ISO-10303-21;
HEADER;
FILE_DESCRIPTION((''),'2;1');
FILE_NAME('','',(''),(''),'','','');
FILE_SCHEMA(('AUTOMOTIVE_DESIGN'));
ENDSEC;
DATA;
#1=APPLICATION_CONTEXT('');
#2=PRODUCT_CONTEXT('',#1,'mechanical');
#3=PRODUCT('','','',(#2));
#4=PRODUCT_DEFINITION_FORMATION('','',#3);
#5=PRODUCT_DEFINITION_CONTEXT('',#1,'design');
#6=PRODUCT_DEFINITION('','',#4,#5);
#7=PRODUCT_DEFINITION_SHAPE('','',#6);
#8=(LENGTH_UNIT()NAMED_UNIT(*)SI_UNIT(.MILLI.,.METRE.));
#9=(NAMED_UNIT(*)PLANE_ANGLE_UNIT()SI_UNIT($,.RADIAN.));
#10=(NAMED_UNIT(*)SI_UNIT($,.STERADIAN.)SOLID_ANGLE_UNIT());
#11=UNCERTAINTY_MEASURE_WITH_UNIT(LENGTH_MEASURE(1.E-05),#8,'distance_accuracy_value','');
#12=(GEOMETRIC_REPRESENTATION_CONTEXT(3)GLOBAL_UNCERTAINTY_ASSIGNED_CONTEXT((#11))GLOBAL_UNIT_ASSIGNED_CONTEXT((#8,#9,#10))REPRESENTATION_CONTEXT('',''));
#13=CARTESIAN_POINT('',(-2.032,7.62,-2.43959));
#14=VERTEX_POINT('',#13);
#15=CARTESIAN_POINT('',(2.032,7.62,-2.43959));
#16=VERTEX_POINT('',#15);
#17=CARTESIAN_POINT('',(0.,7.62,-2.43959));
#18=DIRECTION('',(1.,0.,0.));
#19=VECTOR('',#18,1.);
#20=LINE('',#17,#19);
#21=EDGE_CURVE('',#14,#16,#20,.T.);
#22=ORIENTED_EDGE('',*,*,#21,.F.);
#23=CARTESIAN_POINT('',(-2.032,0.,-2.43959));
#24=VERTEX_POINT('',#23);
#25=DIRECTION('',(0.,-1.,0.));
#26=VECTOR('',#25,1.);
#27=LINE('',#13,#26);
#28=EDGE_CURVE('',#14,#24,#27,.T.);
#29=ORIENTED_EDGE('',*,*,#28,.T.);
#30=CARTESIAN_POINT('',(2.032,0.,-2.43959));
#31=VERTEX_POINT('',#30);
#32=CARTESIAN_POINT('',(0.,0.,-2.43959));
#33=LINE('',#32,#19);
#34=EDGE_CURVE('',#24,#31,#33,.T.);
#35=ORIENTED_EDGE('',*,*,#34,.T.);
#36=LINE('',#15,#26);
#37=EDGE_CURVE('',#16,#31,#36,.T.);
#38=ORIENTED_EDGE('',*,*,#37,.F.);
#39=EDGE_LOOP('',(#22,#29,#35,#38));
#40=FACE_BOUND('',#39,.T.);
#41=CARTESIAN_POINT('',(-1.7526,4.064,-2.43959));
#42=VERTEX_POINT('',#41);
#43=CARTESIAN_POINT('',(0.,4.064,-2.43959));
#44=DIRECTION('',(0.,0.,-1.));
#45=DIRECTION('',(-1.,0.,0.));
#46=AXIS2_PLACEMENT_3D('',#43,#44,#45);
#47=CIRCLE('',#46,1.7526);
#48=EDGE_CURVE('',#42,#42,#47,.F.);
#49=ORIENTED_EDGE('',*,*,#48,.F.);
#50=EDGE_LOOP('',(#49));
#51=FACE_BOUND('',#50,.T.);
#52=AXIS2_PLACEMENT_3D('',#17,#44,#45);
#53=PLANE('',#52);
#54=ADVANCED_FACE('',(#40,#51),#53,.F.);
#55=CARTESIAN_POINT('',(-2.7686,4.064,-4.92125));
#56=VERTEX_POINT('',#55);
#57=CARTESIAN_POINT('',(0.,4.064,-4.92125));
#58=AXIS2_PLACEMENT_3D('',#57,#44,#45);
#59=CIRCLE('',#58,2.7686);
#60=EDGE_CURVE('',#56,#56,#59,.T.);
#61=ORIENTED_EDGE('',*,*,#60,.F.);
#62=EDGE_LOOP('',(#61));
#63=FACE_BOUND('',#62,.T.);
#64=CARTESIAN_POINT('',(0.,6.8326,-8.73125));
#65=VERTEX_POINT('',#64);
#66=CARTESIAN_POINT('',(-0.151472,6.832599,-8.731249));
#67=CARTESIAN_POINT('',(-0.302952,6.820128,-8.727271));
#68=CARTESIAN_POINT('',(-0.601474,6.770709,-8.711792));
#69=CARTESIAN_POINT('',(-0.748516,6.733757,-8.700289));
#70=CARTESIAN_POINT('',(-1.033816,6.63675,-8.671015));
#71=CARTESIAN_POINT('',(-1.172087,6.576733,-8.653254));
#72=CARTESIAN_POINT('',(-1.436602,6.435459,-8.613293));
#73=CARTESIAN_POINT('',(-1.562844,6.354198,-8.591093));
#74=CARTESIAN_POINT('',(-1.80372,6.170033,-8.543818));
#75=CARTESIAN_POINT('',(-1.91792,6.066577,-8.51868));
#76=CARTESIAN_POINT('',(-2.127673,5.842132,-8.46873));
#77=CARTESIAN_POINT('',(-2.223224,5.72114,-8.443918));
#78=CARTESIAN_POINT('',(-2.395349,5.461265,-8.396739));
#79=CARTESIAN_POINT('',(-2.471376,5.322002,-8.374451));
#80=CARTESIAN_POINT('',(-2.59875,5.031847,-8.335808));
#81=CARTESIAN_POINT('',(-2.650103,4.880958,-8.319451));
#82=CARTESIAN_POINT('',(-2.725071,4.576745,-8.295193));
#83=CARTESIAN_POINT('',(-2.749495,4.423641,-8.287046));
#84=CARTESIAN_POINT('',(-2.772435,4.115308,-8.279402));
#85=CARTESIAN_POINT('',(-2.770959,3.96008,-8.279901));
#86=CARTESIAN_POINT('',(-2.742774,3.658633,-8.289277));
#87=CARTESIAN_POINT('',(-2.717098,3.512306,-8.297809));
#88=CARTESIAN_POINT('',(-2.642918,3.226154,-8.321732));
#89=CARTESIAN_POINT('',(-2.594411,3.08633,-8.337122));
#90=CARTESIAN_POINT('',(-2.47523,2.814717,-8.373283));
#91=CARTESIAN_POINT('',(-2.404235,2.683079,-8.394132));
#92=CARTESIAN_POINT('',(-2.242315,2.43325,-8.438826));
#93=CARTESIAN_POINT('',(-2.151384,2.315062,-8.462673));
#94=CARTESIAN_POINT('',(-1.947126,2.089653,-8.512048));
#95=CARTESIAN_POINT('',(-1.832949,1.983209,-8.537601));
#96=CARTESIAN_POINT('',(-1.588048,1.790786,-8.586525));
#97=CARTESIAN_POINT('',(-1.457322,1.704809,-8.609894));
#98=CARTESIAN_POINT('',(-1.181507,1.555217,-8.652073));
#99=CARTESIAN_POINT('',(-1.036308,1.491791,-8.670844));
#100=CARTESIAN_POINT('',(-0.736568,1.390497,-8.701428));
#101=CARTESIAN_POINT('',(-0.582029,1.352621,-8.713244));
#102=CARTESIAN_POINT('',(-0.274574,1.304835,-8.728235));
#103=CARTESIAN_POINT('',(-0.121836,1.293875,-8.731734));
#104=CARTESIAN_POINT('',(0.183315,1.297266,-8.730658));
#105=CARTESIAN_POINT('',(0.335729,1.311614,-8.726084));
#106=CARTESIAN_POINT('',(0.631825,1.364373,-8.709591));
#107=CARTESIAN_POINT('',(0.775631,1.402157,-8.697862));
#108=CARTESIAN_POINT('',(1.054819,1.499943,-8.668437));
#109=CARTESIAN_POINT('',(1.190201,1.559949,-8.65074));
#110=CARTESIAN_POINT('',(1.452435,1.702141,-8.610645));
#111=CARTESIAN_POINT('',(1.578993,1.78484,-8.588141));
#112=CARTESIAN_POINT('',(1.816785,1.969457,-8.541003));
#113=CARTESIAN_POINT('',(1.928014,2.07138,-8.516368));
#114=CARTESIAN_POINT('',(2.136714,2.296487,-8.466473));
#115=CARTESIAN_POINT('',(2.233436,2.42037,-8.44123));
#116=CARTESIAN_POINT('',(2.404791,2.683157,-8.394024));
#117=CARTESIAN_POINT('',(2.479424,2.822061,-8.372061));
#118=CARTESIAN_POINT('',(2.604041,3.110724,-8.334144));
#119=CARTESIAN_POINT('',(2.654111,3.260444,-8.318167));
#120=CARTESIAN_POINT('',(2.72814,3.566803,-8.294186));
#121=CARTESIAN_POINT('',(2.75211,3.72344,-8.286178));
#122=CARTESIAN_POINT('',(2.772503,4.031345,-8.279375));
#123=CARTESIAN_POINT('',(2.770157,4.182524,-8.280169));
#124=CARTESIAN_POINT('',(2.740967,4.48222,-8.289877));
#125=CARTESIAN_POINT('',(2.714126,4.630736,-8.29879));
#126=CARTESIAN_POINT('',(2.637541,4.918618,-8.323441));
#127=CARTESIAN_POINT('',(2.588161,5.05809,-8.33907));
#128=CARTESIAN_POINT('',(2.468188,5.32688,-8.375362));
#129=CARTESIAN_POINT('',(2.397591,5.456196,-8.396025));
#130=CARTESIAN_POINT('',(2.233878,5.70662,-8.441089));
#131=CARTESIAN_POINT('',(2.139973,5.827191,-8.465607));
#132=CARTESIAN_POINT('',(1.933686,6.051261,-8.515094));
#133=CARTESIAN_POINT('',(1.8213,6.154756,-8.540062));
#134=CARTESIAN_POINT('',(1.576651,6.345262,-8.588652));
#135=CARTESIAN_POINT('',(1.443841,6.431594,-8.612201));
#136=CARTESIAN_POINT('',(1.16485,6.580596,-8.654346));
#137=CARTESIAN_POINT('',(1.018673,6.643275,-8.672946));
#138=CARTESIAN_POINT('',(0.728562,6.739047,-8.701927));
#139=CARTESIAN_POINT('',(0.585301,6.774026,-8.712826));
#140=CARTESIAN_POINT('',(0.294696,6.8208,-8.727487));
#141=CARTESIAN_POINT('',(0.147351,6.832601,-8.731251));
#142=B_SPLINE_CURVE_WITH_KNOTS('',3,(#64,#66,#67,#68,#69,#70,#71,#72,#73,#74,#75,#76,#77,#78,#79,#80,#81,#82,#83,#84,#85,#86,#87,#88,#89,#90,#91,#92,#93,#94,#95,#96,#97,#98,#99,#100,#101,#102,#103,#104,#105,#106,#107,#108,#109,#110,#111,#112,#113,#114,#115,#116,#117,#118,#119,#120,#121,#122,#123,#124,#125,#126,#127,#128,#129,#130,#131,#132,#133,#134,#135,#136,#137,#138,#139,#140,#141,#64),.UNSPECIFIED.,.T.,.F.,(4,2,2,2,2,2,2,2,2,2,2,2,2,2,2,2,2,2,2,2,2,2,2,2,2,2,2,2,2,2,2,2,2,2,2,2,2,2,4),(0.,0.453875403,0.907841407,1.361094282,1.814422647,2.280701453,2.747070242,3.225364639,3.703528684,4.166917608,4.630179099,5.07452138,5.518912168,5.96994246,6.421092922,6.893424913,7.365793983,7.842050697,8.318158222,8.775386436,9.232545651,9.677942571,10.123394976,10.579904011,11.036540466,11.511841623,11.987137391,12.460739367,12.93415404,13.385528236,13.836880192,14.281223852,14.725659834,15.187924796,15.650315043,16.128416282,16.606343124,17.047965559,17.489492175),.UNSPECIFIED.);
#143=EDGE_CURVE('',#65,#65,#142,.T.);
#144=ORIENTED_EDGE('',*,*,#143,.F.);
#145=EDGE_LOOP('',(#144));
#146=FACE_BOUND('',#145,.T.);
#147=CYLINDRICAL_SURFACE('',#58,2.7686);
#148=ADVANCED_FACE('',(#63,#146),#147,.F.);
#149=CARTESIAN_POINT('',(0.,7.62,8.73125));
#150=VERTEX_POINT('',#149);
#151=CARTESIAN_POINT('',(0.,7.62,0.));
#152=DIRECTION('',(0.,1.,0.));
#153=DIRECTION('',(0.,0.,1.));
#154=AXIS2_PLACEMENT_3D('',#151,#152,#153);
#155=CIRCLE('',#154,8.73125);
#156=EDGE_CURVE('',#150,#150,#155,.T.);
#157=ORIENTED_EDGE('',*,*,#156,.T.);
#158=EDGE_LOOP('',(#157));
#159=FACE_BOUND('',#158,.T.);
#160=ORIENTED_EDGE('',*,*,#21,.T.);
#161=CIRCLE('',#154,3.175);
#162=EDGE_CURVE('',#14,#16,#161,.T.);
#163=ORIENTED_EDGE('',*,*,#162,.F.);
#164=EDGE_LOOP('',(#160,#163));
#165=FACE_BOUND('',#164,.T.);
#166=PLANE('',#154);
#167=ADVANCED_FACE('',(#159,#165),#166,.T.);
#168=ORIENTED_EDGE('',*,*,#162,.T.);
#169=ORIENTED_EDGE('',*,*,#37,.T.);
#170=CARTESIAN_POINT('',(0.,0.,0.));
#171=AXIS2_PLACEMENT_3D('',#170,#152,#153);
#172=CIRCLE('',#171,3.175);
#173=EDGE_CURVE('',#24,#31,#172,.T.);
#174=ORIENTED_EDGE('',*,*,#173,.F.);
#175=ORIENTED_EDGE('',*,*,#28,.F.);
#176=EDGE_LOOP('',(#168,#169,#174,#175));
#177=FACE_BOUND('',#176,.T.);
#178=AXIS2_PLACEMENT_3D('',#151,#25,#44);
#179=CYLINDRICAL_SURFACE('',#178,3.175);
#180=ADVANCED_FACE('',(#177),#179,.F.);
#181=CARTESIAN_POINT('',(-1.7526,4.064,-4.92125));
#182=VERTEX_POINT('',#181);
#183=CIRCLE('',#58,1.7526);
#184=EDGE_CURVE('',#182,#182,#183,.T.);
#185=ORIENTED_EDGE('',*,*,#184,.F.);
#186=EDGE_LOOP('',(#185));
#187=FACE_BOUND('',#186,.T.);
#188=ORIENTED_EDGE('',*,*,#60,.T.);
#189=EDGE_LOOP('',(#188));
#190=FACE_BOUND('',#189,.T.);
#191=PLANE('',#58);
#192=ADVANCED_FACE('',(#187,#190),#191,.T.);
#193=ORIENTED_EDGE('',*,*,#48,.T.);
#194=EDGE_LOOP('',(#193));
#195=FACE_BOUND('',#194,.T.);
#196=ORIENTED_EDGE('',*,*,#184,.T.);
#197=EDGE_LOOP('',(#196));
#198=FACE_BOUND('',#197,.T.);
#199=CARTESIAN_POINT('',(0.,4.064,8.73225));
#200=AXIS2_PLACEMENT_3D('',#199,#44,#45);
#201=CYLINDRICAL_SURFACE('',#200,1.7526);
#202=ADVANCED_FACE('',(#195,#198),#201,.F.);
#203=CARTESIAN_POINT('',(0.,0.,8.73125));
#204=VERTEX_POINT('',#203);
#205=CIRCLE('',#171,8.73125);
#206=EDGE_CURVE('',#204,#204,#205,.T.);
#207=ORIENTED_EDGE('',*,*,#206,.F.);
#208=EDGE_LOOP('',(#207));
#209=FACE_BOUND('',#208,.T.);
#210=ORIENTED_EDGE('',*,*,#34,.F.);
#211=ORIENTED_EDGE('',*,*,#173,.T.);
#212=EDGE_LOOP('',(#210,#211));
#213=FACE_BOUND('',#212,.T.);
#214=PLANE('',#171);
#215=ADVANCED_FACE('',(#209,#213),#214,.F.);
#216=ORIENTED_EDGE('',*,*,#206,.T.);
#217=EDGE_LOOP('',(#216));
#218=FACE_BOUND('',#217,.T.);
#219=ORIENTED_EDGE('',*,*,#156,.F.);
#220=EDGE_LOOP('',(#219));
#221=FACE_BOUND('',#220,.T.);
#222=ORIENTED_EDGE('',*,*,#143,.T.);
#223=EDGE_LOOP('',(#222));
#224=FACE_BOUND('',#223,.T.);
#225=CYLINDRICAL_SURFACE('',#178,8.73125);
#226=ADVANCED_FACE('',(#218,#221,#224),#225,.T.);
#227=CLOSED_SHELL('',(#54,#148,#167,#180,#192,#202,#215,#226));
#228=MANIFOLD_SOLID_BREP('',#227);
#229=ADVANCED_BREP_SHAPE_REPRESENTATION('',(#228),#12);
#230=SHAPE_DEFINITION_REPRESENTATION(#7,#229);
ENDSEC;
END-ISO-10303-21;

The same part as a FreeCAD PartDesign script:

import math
import FreeCAD as App
import Part
import Sketcher
from FreeCAD import Vector
Q = App.Units.Quantity

doc = App.newDocument("Part")
body = doc.addObject("PartDesign::Body", "Body")

sketch1 = doc.addObject("Sketcher::SketchObject", "Sketch")
body.addObject(sketch1)
sketch1.AttachmentSupport = (doc.XZ_Plane, [""])
sketch1.MapMode = "FlatFace"
sketch1.addGeometry(Part.Circle(Vector(0, 0, 0), Vector(0, 0, 1), 8.7), False)
sketch1.addGeometry(Part.ArcOfCircle(Part.Circle(Vector(0, 0, 0), Vector(0, 0, 1), 3.2), math.radians(-50), math.radians(230)), False)
sketch1.addGeometry(Part.LineSegment(Vector(-2, -2.4, 0), Vector(2, -2.4, 0)), False)
sketch1.addConstraint(Sketcher.Constraint("Coincident", 1, 1, 2, 2))
sketch1.addConstraint(Sketcher.Constraint("Coincident", 2, 1, 1, 2))
sketch1.addConstraint(Sketcher.Constraint("Horizontal", 2))
sketch1.addConstraint(Sketcher.Constraint("Coincident", 0, 3, -1, 1))
sketch1.addConstraint(Sketcher.Constraint("Coincident", 1, 3, -1, 1))
sketch1.addConstraint(Sketcher.Constraint("Diameter", 0, Q("0.6875 in")))
sketch1.addConstraint(Sketcher.Constraint("Radius", 1, Q("0.125 in")))
sketch1.addConstraint(Sketcher.Constraint("DistanceX", 2, 1, 2, 2, Q("0.16 in")))
pad1 = doc.addObject("PartDesign::Pad", "Pad")
body.addObject(pad1)
pad1.Profile = sketch1
pad1.Length = Q("0.3 in")
pad1.Reversed = True

sketch2 = doc.addObject("Sketcher::SketchObject", "Sketch001")
body.addObject(sketch2)
sketch2.AttachmentSupport = (doc.XY_Plane, [""])
sketch2.MapMode = "FlatFace"
sketch2.AttachmentOffset = App.Placement(Vector(0, 0, -0.34375 * 25.4), App.Rotation())
sketch2.addGeometry(Part.Circle(Vector(0, 4.1, 0), Vector(0, 0, 1), 2.8), False)
sketch2.addConstraint(Sketcher.Constraint("PointOnObject", 0, 3, -2))
sketch2.addConstraint(Sketcher.Constraint("Diameter", 0, Q("0.218 in")))
sketch2.addConstraint(Sketcher.Constraint("DistanceY", -1, 1, 0, 3, Q("0.16 in")))
pocket1 = doc.addObject("PartDesign::Pocket", "Pocket")
body.addObject(pocket1)
pocket1.Profile = sketch2
pocket1.Length = Q("0.15 in")
pocket1.Reversed = True

sketch3 = doc.addObject("Sketcher::SketchObject", "Sketch002")
body.addObject(sketch3)
sketch3.AttachmentSupport = (doc.XY_Plane, [""])
sketch3.MapMode = "FlatFace"
sketch3.AttachmentOffset = App.Placement(Vector(0, 0, -4.92125), App.Rotation())
sketch3.addGeometry(Part.Circle(Vector(0, 4.1, 0), Vector(0, 0, 1), 1.8), False)
sketch3.addConstraint(Sketcher.Constraint("PointOnObject", 0, 3, -2))
sketch3.addConstraint(Sketcher.Constraint("Diameter", 0, Q("0.138 in")))
sketch3.addConstraint(Sketcher.Constraint("DistanceY", -1, 1, 0, 3, Q("0.16 in")))
pocket2 = doc.addObject("PartDesign::Pocket", "Pocket001")
body.addObject(pocket2)
pocket2.Profile = sketch3
pocket2.Type = "UpToFirst"
pocket2.Reversed = True

doc.recompute()
